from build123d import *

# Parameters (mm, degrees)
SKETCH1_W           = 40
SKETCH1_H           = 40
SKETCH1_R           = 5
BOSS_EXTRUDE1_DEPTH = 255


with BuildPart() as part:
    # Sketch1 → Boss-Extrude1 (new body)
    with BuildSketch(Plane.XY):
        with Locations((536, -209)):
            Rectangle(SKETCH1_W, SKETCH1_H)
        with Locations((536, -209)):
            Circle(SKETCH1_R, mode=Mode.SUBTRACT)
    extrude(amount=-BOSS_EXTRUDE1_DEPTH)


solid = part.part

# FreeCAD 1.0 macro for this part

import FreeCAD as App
import Part
import Sketcher
from FreeCAD import Vector
Q = App.Units.Quantity

doc = App.newDocument("Part")
params = doc.addObject("Spreadsheet::Sheet", "Params")
for row, (alias, value) in enumerate([
    ("sketch1_diameter", "10 mm"),
    ("sketch1_width", "40 mm"),
    ("pad1_length", "255 mm"),
], start=1):
    params.set(f"A{row}", alias)
    params.set(f"B{row}", "=" + value)
    params.setAlias(f"B{row}", alias)

body = doc.addObject("PartDesign::Body", "Body")

# Sketch on XY plane
sketch1 = body.newObject("Sketcher::SketchObject", "Sketch")
sketch1.AttachmentSupport = (doc.getObject("XY_Plane"), [""])
sketch1.MapMode = "FlatFace"
sketch1.addGeometry(Part.LineSegment(Vector(516, -189, 0), Vector(516, -229, 0)), False)
sketch1.addGeometry(Part.LineSegment(Vector(516, -229, 0), Vector(556, -229, 0)), False)
sketch1.addGeometry(Part.LineSegment(Vector(556, -229, 0), Vector(556, -189, 0)), False)
sketch1.addGeometry(Part.LineSegment(Vector(556, -189, 0), Vector(516, -189, 0)), False)
sketch1.addGeometry(Part.Circle(Vector(536, -209, 0), Vector(0, 0, 1), 5), False)
sketch1.addConstraint(Sketcher.Constraint("Coincident", 0, 2, 1, 1))
sketch1.addConstraint(Sketcher.Constraint("Coincident", 1, 2, 2, 1))
sketch1.addConstraint(Sketcher.Constraint("Coincident", 2, 2, 3, 1))
sketch1.addConstraint(Sketcher.Constraint("Coincident", 3, 2, 0, 1))
sketch1.addConstraint(Sketcher.Constraint("Vertical", 0))
sketch1.addConstraint(Sketcher.Constraint("Horizontal", 1))
sketch1.addConstraint(Sketcher.Constraint("Vertical", 2))
sketch1.addConstraint(Sketcher.Constraint("Horizontal", 3))
sketch1.addConstraint(Sketcher.Constraint("Equal", 3, 0))
sketch1.addConstraint(Sketcher.Constraint("Diameter", 4, Q("10 mm")))
sketch1.addConstraint(Sketcher.Constraint("DistanceX", 1, 1, 1, 2, Q("40 mm")))
sketch1.addConstraint(Sketcher.Constraint("DistanceX", -1, 1, 4, 3, Q("536 mm")))
sketch1.addConstraint(Sketcher.Constraint("DistanceY", 4, 3, -1, 1, Q("209 mm")))
sketch1.addConstraint(Sketcher.Constraint("DistanceX", -1, 1, 0, 2, Q("516 mm")))
sketch1.addConstraint(Sketcher.Constraint("DistanceY", 0, 2, -1, 1, Q("229 mm")))
sketch1.setExpression("Constraints[9]", "Params.sketch1_diameter")
sketch1.setExpression("Constraints[10]", "Params.sketch1_width")
pad1 = body.newObject("PartDesign::Pad", "Pad")
pad1.Profile = sketch1
pad1.setExpression("Length", "Params.pad1_length")
pad1.Reversed = True

doc.recompute()
